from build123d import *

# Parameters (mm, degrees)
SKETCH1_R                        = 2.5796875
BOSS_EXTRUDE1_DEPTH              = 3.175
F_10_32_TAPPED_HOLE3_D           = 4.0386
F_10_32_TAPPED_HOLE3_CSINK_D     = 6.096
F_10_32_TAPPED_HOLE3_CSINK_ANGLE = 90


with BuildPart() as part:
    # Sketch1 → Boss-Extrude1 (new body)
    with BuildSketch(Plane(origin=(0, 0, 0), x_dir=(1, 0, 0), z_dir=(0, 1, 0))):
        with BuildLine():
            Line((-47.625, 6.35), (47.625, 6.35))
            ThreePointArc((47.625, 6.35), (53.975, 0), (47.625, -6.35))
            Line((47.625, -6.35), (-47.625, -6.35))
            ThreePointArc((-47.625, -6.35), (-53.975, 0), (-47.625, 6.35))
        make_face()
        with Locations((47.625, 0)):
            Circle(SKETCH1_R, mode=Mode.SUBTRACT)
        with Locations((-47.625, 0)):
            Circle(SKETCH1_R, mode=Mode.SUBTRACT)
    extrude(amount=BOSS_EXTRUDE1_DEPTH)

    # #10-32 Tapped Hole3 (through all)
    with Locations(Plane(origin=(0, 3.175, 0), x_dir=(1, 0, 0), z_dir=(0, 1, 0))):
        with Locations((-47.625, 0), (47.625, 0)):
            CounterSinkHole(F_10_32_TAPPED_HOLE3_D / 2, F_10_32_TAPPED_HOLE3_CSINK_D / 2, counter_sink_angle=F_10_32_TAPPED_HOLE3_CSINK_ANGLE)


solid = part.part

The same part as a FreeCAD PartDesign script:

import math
import FreeCAD as App
import Part
import Sketcher
from FreeCAD import Vector
Q = App.Units.Quantity

doc = App.newDocument("Part")
body = doc.addObject("PartDesign::Body", "Body")

sketch1 = doc.addObject("Sketcher::SketchObject", "Sketch")
body.addObject(sketch1)
sketch1.AttachmentSupport = (doc.XZ_Plane, [""])
sketch1.MapMode = "FlatFace"
sketch1.addGeometry([
    Part.LineSegment(Vector(47.6, -6.3, 0), Vector(-47.6, -6.3, 0)),
    Part.ArcOfCircle(Part.Circle(Vector(-47.6, 0, 0), Vector(0, 0, 1), 6.3), math.radians(90), math.radians(270)),
    Part.LineSegment(Vector(-47.6, 6.3, 0), Vector(47.6, 6.3, 0)),
    Part.ArcOfCircle(Part.Circle(Vector(47.6, 0, 0), Vector(0, 0, 1), 6.3), math.radians(-90), math.radians(90)),
    Part.Circle(Vector(47.6, 0, 0), Vector(0, 0, 1), 2.6),
    Part.Circle(Vector(-47.6, 0, 0), Vector(0, 0, 1), 2.6),
], False)
sketch1.addConstraint([
    Sketcher.Constraint("Tangent", 0, 2, 1, 2),
    Sketcher.Constraint("Tangent", 1, 1, 2, 1),
    Sketcher.Constraint("Tangent", 2, 2, 3, 2),
    Sketcher.Constraint("Tangent", 3, 1, 0, 1),
    Sketcher.Constraint("Horizontal", 0),
    Sketcher.Constraint("Horizontal", 2),
    Sketcher.Constraint("Coincident", 4, 3, 3, 3),
    Sketcher.Constraint("Coincident", 5, 3, 1, 3),
    Sketcher.Constraint("Equal", 4, 5),
    Sketcher.Constraint("Symmetric", 1, 3, 3, 3, -1, 1),
    Sketcher.Constraint("Radius", 1, Q("0.25 in")),
    Sketcher.Constraint("Diameter", 4, Q("0.203125 in")),
    Sketcher.Constraint("DistanceX", 0, 2, 0, 1, Q("3.75 in")),
])
pad1 = doc.addObject("PartDesign::Pad", "Pad")
body.addObject(pad1)
pad1.Profile = sketch1
pad1.Length = Q("0.125 in")
pad1.Reversed = True

sketch2 = doc.addObject("Sketcher::SketchObject", "Sketch001")
body.addObject(sketch2)
sketch2.AttachmentSupport = (doc.XZ_Plane, [""])
sketch2.MapMode = "FlatFace"
sketch2.AttachmentOffset = App.Placement(Vector(0, 0, -0.125 * 25.4), App.Rotation())
sketch2.addGeometry([
    Part.Circle(Vector(-47.6, 0, 0), Vector(0, 0, 1), 2),
    Part.Circle(Vector(47.6, 0, 0), Vector(0, 0, 1), 2),
], False)
sketch2.addConstraint([
    Sketcher.Constraint("Equal", 0, 1),
    Sketcher.Constraint("Symmetric", 0, 3, 1, 3, -1, 1),
    Sketcher.Constraint("PointOnObject", 0, 3, -1),
    Sketcher.Constraint("Diameter", 0, Q("0.159 in")),
    Sketcher.Constraint("DistanceX", 0, 3, 1, 3, Q("3.75 in")),
])
doc.recompute()
hole = doc.addObject("PartDesign::Hole", "Hole")
body.addObject(hole)
hole.Profile = sketch2
hole.ThreadType = "None"
hole.Diameter = Q("0.159 in")
hole.DepthType = "ThroughAll"
hole.HoleCutType = "Countersink"
hole.HoleCutDiameter = Q("0.24 in")
hole.HoleCutCountersinkAngle = 90
hole.Reversed = True

doc.recompute()
